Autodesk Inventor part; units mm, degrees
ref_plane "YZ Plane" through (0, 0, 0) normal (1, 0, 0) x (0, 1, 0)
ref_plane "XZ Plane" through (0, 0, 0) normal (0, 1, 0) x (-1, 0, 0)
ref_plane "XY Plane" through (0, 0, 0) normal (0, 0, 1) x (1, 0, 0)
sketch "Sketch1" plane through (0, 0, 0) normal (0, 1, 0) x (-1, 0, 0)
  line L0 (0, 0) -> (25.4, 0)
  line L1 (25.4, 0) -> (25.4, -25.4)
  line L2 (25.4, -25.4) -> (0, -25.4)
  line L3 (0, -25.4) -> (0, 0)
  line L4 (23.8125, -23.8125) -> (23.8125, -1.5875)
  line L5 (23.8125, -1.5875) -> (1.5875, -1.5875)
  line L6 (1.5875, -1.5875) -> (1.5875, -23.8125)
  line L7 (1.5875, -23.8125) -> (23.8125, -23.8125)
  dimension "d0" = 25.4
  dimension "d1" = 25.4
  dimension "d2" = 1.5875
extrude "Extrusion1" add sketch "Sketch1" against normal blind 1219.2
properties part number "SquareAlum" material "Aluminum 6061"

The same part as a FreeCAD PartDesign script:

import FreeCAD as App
import Part
import Sketcher
Q = App.Units.Quantity


def add_polygon(sketch, points):
    """Adds a closed chain of lines whose ends are joined by coincident constraints."""
    first, n = sketch.GeometryCount, len(points)
    for a, b in zip(points, points[1:] + points[:1]):
        sketch.addGeometry(Part.LineSegment(App.Vector(*a, 0), App.Vector(*b, 0)), False)
    for i in range(n):
        sketch.addConstraint(Sketcher.Constraint("Coincident", first + i, 2, first + (i + 1) % n, 1))

doc = App.newDocument("Part")
body = doc.addObject("PartDesign::Body", "Body")

sketch1 = doc.addObject("Sketcher::SketchObject", "Sketch")
body.addObject(sketch1)
sketch1.AttachmentSupport = (doc.XZ_Plane, [""])
sketch1.MapMode = "FlatFace"
add_polygon(sketch1, [(-25, 0), (0, 0), (0, -25), (-25, -25)])
add_polygon(sketch1, [(-24, -2), (-24, -24), (-2, -24), (-2, -2)])
sketch1.addConstraint([
    Sketcher.Constraint("Horizontal", 0),
    Sketcher.Constraint("Vertical", 1),
    Sketcher.Constraint("Horizontal", 2),
    Sketcher.Constraint("Vertical", 3),
    Sketcher.Constraint("Vertical", 4),
    Sketcher.Constraint("Horizontal", 5),
    Sketcher.Constraint("Vertical", 6),
    Sketcher.Constraint("Horizontal", 7),
    Sketcher.Constraint("Coincident", 0, 2, -1, 1),
    Sketcher.Constraint("Equal", 2, 1),
    Sketcher.Constraint("Equal", 7, 4),
    Sketcher.Constraint("DistanceX", 0, 1, 0, 2, Q("1 in")),
    Sketcher.Constraint("DistanceX", 5, 2, -1, 1, Q("0.0625 in")),
    Sketcher.Constraint("DistanceY", 6, 2, -1, 1, Q("0.0625 in")),
    Sketcher.Constraint("DistanceX", 2, 2, 4, 2, Q("0.0625 in")),
])
pad1 = doc.addObject("PartDesign::Pad", "Pad")
body.addObject(pad1)
pad1.Profile = sketch1
pad1.Length = Q("48 in")

doc.recompute()
